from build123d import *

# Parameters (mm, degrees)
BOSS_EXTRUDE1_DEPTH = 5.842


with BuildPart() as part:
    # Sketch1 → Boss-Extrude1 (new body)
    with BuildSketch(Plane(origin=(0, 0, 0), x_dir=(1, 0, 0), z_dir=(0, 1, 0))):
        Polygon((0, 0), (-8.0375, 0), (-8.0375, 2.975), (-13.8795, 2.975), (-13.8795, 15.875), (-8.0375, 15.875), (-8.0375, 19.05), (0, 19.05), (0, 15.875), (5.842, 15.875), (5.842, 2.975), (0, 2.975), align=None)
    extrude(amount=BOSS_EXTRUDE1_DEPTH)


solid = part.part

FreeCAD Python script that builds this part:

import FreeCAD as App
import Part
import Sketcher
Q = App.Units.Quantity


def add_polygon(sketch, points):
    """Adds a closed chain of lines whose ends are joined by coincident constraints."""
    first, n = sketch.GeometryCount, len(points)
    for a, b in zip(points, points[1:] + points[:1]):
        sketch.addGeometry(Part.LineSegment(App.Vector(*a, 0), App.Vector(*b, 0)), False)
    for i in range(n):
        sketch.addConstraint(Sketcher.Constraint("Coincident", first + i, 2, first + (i + 1) % n, 1))

doc = App.newDocument("Part")
body = doc.addObject("PartDesign::Body", "Body")

sketch1 = body.newObject("Sketcher::SketchObject", "Sketch")
sketch1.AttachmentSupport = (doc.getObject("XZ_Plane"), [""])
sketch1.MapMode = "FlatFace"
add_polygon(sketch1, [(-8, 0), (0, 0), (0, -3), (5.8, -3), (5.8, -15.9), (0, -15.9), (0, -19.1), (-8, -19.1), (-8, -15.9), (-13.9, -15.9), (-13.9, -3), (-8, -3)])
sketch1.addConstraint([
    Sketcher.Constraint("Horizontal", 0),
    Sketcher.Constraint("Vertical", 1),
    Sketcher.Constraint("Horizontal", 2),
    Sketcher.Constraint("Vertical", 3),
    Sketcher.Constraint("Horizontal", 4),
    Sketcher.Constraint("Vertical", 5),
    Sketcher.Constraint("Horizontal", 6),
    Sketcher.Constraint("Vertical", 7),
    Sketcher.Constraint("Horizontal", 8),
    Sketcher.Constraint("Vertical", 9),
    Sketcher.Constraint("Horizontal", 10),
    Sketcher.Constraint("Vertical", 11),
    Sketcher.Constraint("Coincident", 0, 2, -1, 1),
    Sketcher.Constraint("PointOnObject", 4, 2, -2),
    Sketcher.Constraint("Horizontal", 4, 2, 7, 2),
    Sketcher.Constraint("Horizontal", 2, 2, 9, 2),
    Sketcher.Constraint("Vertical", 7, 2, 10, 2),
    Sketcher.Constraint("Equal", 4, 8),
    Sketcher.Constraint("DistanceX", 2, 1, 2, 2, Q("0.23 in")),
    Sketcher.Constraint("DistanceY", 5, 2, 5, 1, Q("0.125 in")),
    Sketcher.Constraint("DistanceY", 5, 2, -1, 1, Q("0.75 in")),
    Sketcher.Constraint("DistanceX", 0, 1, 0, 2, 8.0375),
    Sketcher.Constraint("DistanceY", 1, 2, 1, 1, 2.975),
])
pad1 = body.newObject("PartDesign::Pad", "Pad")
pad1.Profile = sketch1
pad1.Length = Q("0.23 in")
pad1.Reversed = True

doc.recompute()
